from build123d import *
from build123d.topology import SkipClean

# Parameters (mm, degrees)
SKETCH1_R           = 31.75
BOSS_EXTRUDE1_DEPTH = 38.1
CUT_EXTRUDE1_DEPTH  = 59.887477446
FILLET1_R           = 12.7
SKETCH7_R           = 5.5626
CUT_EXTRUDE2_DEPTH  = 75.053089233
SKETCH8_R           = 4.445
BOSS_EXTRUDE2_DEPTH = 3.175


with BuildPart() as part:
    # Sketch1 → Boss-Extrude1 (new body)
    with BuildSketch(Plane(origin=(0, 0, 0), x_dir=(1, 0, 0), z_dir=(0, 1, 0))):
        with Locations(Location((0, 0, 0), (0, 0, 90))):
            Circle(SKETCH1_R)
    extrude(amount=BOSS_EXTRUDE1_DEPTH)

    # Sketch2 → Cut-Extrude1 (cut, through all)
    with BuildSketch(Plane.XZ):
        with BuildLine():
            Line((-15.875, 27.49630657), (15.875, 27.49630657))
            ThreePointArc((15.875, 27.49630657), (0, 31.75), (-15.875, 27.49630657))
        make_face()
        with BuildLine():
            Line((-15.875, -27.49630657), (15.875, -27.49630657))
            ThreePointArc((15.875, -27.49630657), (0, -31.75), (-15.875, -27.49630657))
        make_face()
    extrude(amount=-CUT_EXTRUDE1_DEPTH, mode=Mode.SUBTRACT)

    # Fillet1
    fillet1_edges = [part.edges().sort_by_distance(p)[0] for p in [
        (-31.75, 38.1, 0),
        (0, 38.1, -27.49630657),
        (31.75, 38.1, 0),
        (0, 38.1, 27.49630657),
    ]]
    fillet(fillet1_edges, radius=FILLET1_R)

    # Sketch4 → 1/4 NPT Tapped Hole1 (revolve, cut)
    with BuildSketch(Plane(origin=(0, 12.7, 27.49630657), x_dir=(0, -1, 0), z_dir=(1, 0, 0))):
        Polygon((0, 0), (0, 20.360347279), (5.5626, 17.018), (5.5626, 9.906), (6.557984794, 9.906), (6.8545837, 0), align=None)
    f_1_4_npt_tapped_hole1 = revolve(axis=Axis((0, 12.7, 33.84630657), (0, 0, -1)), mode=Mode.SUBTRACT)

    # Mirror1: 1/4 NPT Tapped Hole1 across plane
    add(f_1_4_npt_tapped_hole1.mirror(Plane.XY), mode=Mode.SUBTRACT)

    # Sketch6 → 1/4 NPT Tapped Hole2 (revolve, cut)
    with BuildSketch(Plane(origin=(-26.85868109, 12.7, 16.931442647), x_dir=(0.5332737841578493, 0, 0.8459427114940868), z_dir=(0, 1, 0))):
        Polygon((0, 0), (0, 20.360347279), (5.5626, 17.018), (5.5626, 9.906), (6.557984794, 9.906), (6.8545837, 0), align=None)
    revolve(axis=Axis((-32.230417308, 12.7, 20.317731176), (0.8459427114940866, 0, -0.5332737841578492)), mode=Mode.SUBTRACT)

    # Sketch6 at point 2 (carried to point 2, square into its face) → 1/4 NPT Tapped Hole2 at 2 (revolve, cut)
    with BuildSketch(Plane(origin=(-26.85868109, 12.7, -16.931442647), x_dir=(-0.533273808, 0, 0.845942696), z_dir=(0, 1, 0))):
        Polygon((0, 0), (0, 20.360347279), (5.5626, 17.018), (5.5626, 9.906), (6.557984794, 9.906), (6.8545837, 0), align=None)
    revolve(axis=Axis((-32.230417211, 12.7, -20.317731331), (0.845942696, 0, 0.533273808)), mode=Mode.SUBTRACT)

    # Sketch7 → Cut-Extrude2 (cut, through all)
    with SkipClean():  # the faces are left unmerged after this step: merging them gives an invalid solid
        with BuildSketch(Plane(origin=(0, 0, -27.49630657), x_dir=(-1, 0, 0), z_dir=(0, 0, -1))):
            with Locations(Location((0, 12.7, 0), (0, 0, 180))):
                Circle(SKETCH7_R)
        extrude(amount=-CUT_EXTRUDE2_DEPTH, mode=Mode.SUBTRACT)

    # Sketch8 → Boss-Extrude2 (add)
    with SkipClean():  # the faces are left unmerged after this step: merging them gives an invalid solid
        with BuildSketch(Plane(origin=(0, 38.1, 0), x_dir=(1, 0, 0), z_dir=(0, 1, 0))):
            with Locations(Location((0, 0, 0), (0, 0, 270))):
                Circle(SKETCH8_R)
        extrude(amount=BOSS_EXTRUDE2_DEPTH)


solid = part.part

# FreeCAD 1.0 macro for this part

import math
import FreeCAD as App
import Part
import Sketcher

V = App.Vector
Q = App.Units.Quantity


def edges_at(feature, points):
    """Names of the edges that pass closest to the given points."""
    edges = feature.Shape.Edges
    near = lambda p: min(range(len(edges)), key=lambda i: edges[i].distToShape(Part.Vertex(*p))[0])
    return sorted({f"Edge{near(p) + 1}" for p in points})


def add_polygon(sketch, points):
    """Adds a closed chain of lines whose ends are joined by coincident constraints."""
    first, n = sketch.GeometryCount, len(points)
    for a, b in zip(points, points[1:] + points[:1]):
        sketch.addGeometry(Part.LineSegment(App.Vector(*a, 0), App.Vector(*b, 0)), False)
    for i in range(n):
        sketch.addConstraint(Sketcher.Constraint("Coincident", first + i, 2, first + (i + 1) % n, 1))

doc = App.newDocument("Part")
params = doc.addObject("Spreadsheet::Sheet", "Params")
for row, (alias, value) in enumerate([
    ("sketch1_diameter", "2.5 in"),
    ("pad1_length", "1.5 in"),
    ("sketch2_radius", "1.25 in"),
    ("sketch2_width", "1.25 in"),
    ("fillet_radius", "0.5 in"),
    ("sketch3_height", "0.28 in"),
    ("groove_angle", "360 deg"),
    ("sketch4_length", "0.28 in"),
    ("groove2_angle", "360 deg"),
    ("sketch5_length", "0.28 in"),
    ("groove3_angle", "360 deg"),
    ("sketch6_diameter", "0.438 in"),
    ("sketch7_diameter", "0.35 in"),
    ("pad2_length", "0.125 in"),
], start=1):
    params.set(f"A{row}", alias)
    params.set(f"B{row}", "=" + value)
    params.setAlias(f"B{row}", alias)

body = doc.addObject("PartDesign::Body", "Body")

# Sketch on XZ plane
sketch1 = body.newObject("Sketcher::SketchObject", "Sketch")
sketch1.AttachmentSupport = (doc.getObject("XZ_Plane"), [""])
sketch1.MapMode = "FlatFace"
sketch1.addGeometry(Part.Circle(V(0, 0, 0), V(0, 0, 1), 32), False)
sketch1.addConstraint(Sketcher.Constraint("Coincident", 0, 3, -1, 1))
sketch1.addConstraint(Sketcher.Constraint("Diameter", 0, Q("2.5 in")))
sketch1.setExpression("Constraints[1]", "Params.sketch1_diameter")
pad1 = body.newObject("PartDesign::Pad", "Pad")
pad1.Profile = sketch1
pad1.setExpression("Length", "Params.pad1_length")
pad1.Reversed = True

# Sketch on XZ plane
sketch2 = body.newObject("Sketcher::SketchObject", "Sketch001")
sketch2.AttachmentSupport = (doc.getObject("XZ_Plane"), [""])
sketch2.MapMode = "FlatFace"
sketch2.addGeometry(Part.LineSegment(V(-16, 27, 0), V(16, 27, 0)), False)
sketch2.addGeometry(Part.ArcOfCircle(Part.Circle(V(0, 0, 0), V(0, 0, 1), 32), math.radians(60), math.radians(120)), False)
sketch2.addGeometry(Part.LineSegment(V(16, -27, 0), V(-16, -27, 0)), False)
sketch2.addGeometry(Part.ArcOfCircle(Part.Circle(V(0, 0, 0), V(0, 0, 1), 32), math.radians(-120), math.radians(-60)), False)
sketch2.addConstraint(Sketcher.Constraint("Coincident", 0, 1, 1, 2))
sketch2.addConstraint(Sketcher.Constraint("Coincident", 1, 1, 0, 2))
sketch2.addConstraint(Sketcher.Constraint("Coincident", 2, 1, 3, 2))
sketch2.addConstraint(Sketcher.Constraint("Coincident", 3, 1, 2, 2))
sketch2.addConstraint(Sketcher.Constraint("Horizontal", 0))
sketch2.addConstraint(Sketcher.Constraint("Horizontal", 2))
sketch2.addConstraint(Sketcher.Constraint("Coincident", 1, 3, -1, 1))
sketch2.addConstraint(Sketcher.Constraint("Coincident", 3, 3, -1, 1))
sketch2.addConstraint(Sketcher.Constraint("Equal", 1, 3))
sketch2.addConstraint(Sketcher.Constraint("Vertical", 1, 1, 2, 1))
sketch2.addConstraint(Sketcher.Constraint("Radius", 1, Q("1.25 in")))
sketch2.addConstraint(Sketcher.Constraint("DistanceX", 0, 1, 0, 2, Q("1.25 in")))
sketch2.setExpression("Constraints[10]", "Params.sketch2_radius")
sketch2.setExpression("Constraints[11]", "Params.sketch2_width")
pocket1 = body.newObject("PartDesign::Pocket", "Pocket")
pocket1.Profile = sketch2
pocket1.Type = "ThroughAll"
doc.recompute()

fillet = body.newObject("PartDesign::Fillet", "Fillet")
fillet.Base = (pocket1, edges_at(pocket1, [
    (-31.75, 38.1, 0),
    (0, 38.1, -27.496),
    (31.75, 38.1, 0),
    (0, 38.1, 27.496),
]))
fillet.setExpression("Radius", "Params.fillet_radius")

# Sketch on YZ plane
sketch3 = body.newObject("Sketcher::SketchObject", "Sketch002")
sketch3.AttachmentSupport = (doc.getObject("YZ_Plane"), [""])
sketch3.MapMode = "FlatFace"
add_polygon(sketch3, [(12.7, 7.1), (12.7, 27.5), (5.8, 27.5), (6.1, 17.6), (7.1, 17.6), (7.1, 10.5)])  # lines 0-5
sketch3.addGeometry(Part.LineSegment(V(12.7, 27.5, 0), V(12.7, 7.1, 0)), True)  # axis
sketch3.addConstraint(Sketcher.Constraint("Vertical", 0))
sketch3.addConstraint(Sketcher.Constraint("Horizontal", 1))
sketch3.addConstraint(Sketcher.Constraint("Horizontal", 3))
sketch3.addConstraint(Sketcher.Constraint("Vertical", 4))
sketch3.addConstraint(Sketcher.Constraint("Vertical", 6))
sketch3.addConstraint(Sketcher.Constraint("Coincident", 6, 1, 0, 2))
sketch3.addConstraint(Sketcher.Constraint("Equal", 0, 6))
sketch3.addConstraint(Sketcher.Constraint("Angle", 5, Q("-31 deg")))
sketch3.addConstraint(Sketcher.Constraint("DistanceY", 4, 2, 4, 1, Q("0.28 in")))
sketch3.addConstraint(Sketcher.Constraint("DistanceX", -1, 1, 0, 2, Q("0.5 in")))
sketch3.addConstraint(Sketcher.Constraint("DistanceY", 2, 2, 1, 2, Q("0.39 in")))
sketch3.addConstraint(Sketcher.Constraint("DistanceX", -1, 1, 3, 2, Q("0.281 in")))
sketch3.addConstraint(Sketcher.Constraint("DistanceX", 1, 2, 2, 2, Q("0.296599 mm")))
sketch3.addConstraint(Sketcher.Constraint("DistanceX", 1, 2, 1, 1, Q("6.854584 mm")))
sketch3.addConstraint(Sketcher.Constraint("DistanceY", -1, 1, 5, 2, Q("7.135959 mm")))
sketch3.setExpression("Constraints[14]", "Params.sketch3_height")
groove = body.newObject("PartDesign::Groove", "Groove")
groove.Profile = sketch3
groove.ReferenceAxis = (sketch3, ["Axis0"])
groove.setExpression("Angle", "Params.groove_angle")
doc.recompute()

mirrored = body.newObject("PartDesign::Mirrored", "Mirrored")
mirrored.Originals = [groove]
mirrored.MirrorPlane = (doc.getObject("XY_Plane"), [""])
body.Tip = mirrored

# Sketch on XZ plane
sketch4 = body.newObject("Sketcher::SketchObject", "Sketch003")
sketch4.AttachmentSupport = (doc.getObject("XZ_Plane"), [""])
sketch4.MapMode = "FlatFace"
sketch4.AttachmentOffset = App.Placement(V(0, 0, -0.5 * 25.4), App.Rotation())
add_polygon(sketch4, [(-9.6, 6.1), (-26.9, 16.9), (-23.2, 22.7), (-15, 17.2), (-15.5, 16.4), (-9.5, 12.6)])  # lines 0-5
sketch4.addGeometry(Part.LineSegment(V(-26.9, 16.9, 0), V(-9.6, 6.1, 0)), True)  # axis
sketch4.addConstraint(Sketcher.Constraint("Coincident", 6, 1, 0, 2))
sketch4.addConstraint(Sketcher.Constraint("Coincident", 6, 2, 5, 2))
sketch4.addConstraint(Sketcher.Constraint("Perpendicular", 0, 1))
sketch4.addConstraint(Sketcher.Constraint("Parallel", 1, 3))
sketch4.addConstraint(Sketcher.Constraint("Perpendicular", 3, 4))
sketch4.addConstraint(Sketcher.Constraint("Distance", 4, Q("0.28 in")))
sketch4.addConstraint(Sketcher.Constraint("Distance", 2, Q("9.910439 mm")))
sketch4.addConstraint(Sketcher.Constraint("DistanceX", 0, 2, -1, 1, Q("26.858681 mm")))
sketch4.addConstraint(Sketcher.Constraint("DistanceX", 1, 2, -1, 1, Q("23.203311 mm")))
sketch4.addConstraint(Sketcher.Constraint("DistanceX", 2, 2, -1, 1, Q("14.981571 mm")))
sketch4.addConstraint(Sketcher.Constraint("DistanceY", -1, 1, 2, 2, Q("17.196512 mm")))
sketch4.addConstraint(Sketcher.Constraint("DistanceX", 4, 2, -1, 1, Q("9.496039 mm")))
sketch4.addConstraint(Sketcher.Constraint("DistanceY", -1, 1, 4, 2, Q("12.56183 mm")))
sketch4.addConstraint(Sketcher.Constraint("DistanceX", 3, 2, 5, 2, Q("5.87739 mm")))
sketch4.setExpression("Constraints[11]", "Params.sketch4_length")
groove2 = body.newObject("PartDesign::Groove", "Groove001")
groove2.Profile = sketch4
groove2.ReferenceAxis = (sketch4, ["Axis0"])
groove2.setExpression("Angle", "Params.groove2_angle")

# Sketch on XZ plane
sketch5 = body.newObject("Sketcher::SketchObject", "Sketch004")
sketch5.AttachmentSupport = (doc.getObject("XZ_Plane"), [""])
sketch5.MapMode = "FlatFace"
sketch5.AttachmentOffset = App.Placement(V(0, 0, -0.5 * 25.4), App.Rotation())
add_polygon(sketch5, [(-9.6, -6.1), (-26.9, -16.9), (-30.5, -11.1), (-22, -6.1), (-21.4, -6.9), (-15.4, -3.2)])  # lines 0-5
sketch5.addGeometry(Part.LineSegment(V(-26.9, -16.9, 0), V(-9.6, -6.1, 0)), True)  # axis
sketch5.addConstraint(Sketcher.Constraint("Coincident", 6, 1, 0, 2))
sketch5.addConstraint(Sketcher.Constraint("Coincident", 6, 2, 5, 2))
sketch5.addConstraint(Sketcher.Constraint("Perpendicular", 0, 1))
sketch5.addConstraint(Sketcher.Constraint("Parallel", 1, 3))
sketch5.addConstraint(Sketcher.Constraint("Perpendicular", 3, 4))
sketch5.addConstraint(Sketcher.Constraint("Distance", 4, Q("0.28 in")))
sketch5.addConstraint(Sketcher.Constraint("Distance", 2, Q("9.910439 mm")))
sketch5.addConstraint(Sketcher.Constraint("DistanceX", 0, 2, -1, 1, Q("26.858681 mm")))
sketch5.addConstraint(Sketcher.Constraint("DistanceX", 1, 2, -1, 1, Q("30.514051 mm")))
sketch5.addConstraint(Sketcher.Constraint("DistanceX", 3, 2, -1, 1, Q("21.445162 mm")))
sketch5.addConstraint(Sketcher.Constraint("DistanceY", 3, 2, -1, 1, Q("6.943191 mm")))
sketch5.addConstraint(Sketcher.Constraint("DistanceY", 4, 2, -1, 1, Q("3.150548 mm")))
sketch5.addConstraint(Sketcher.Constraint("DistanceY", 0, 2, 2, 2, Q("10.83029 mm")))
sketch5.addConstraint(Sketcher.Constraint("DistanceY", 3, 2, 5, 2, Q("0.869389 mm")))
sketch5.setExpression("Constraints[11]", "Params.sketch5_length")
groove3 = body.newObject("PartDesign::Groove", "Groove002")
groove3.Profile = sketch5
groove3.ReferenceAxis = (sketch5, ["Axis0"])
groove3.setExpression("Angle", "Params.groove3_angle")

# Sketch on XY plane
sketch6 = body.newObject("Sketcher::SketchObject", "Sketch005")
sketch6.AttachmentSupport = (doc.getObject("XY_Plane"), [""])
sketch6.MapMode = "FlatFace"
sketch6.AttachmentOffset = App.Placement(V(0, 0, -27.496307), App.Rotation())
sketch6.addGeometry(Part.Circle(V(0, 13, 0), V(0, 0, 1), 6), False)
sketch6.addConstraint(Sketcher.Constraint("PointOnObject", 0, 3, -2))
sketch6.addConstraint(Sketcher.Constraint("Diameter", 0, Q("0.438 in")))
sketch6.addConstraint(Sketcher.Constraint("DistanceY", -1, 1, 0, 3, Q("0.5 in")))
sketch6.setExpression("Constraints[1]", "Params.sketch6_diameter")
pocket2 = body.newObject("PartDesign::Pocket", "Pocket001")
pocket2.Profile = sketch6
pocket2.Type = "ThroughAll"
pocket2.Reversed = True

# Sketch on XZ plane
sketch7 = body.newObject("Sketcher::SketchObject", "Sketch006")
sketch7.AttachmentSupport = (doc.getObject("XZ_Plane"), [""])
sketch7.MapMode = "FlatFace"
sketch7.AttachmentOffset = App.Placement(V(0, 0, -1.5 * 25.4), App.Rotation())
sketch7.addGeometry(Part.Circle(V(0, 0, 0), V(0, 0, 1), 4.4), False)
sketch7.addConstraint(Sketcher.Constraint("Coincident", 0, 3, -1, 1))
sketch7.addConstraint(Sketcher.Constraint("Diameter", 0, Q("0.35 in")))
sketch7.setExpression("Constraints[1]", "Params.sketch7_diameter")
pad2 = body.newObject("PartDesign::Pad", "Pad001")
pad2.Profile = sketch7
pad2.setExpression("Length", "Params.pad2_length")
pad2.Reversed = True

doc.recompute()
